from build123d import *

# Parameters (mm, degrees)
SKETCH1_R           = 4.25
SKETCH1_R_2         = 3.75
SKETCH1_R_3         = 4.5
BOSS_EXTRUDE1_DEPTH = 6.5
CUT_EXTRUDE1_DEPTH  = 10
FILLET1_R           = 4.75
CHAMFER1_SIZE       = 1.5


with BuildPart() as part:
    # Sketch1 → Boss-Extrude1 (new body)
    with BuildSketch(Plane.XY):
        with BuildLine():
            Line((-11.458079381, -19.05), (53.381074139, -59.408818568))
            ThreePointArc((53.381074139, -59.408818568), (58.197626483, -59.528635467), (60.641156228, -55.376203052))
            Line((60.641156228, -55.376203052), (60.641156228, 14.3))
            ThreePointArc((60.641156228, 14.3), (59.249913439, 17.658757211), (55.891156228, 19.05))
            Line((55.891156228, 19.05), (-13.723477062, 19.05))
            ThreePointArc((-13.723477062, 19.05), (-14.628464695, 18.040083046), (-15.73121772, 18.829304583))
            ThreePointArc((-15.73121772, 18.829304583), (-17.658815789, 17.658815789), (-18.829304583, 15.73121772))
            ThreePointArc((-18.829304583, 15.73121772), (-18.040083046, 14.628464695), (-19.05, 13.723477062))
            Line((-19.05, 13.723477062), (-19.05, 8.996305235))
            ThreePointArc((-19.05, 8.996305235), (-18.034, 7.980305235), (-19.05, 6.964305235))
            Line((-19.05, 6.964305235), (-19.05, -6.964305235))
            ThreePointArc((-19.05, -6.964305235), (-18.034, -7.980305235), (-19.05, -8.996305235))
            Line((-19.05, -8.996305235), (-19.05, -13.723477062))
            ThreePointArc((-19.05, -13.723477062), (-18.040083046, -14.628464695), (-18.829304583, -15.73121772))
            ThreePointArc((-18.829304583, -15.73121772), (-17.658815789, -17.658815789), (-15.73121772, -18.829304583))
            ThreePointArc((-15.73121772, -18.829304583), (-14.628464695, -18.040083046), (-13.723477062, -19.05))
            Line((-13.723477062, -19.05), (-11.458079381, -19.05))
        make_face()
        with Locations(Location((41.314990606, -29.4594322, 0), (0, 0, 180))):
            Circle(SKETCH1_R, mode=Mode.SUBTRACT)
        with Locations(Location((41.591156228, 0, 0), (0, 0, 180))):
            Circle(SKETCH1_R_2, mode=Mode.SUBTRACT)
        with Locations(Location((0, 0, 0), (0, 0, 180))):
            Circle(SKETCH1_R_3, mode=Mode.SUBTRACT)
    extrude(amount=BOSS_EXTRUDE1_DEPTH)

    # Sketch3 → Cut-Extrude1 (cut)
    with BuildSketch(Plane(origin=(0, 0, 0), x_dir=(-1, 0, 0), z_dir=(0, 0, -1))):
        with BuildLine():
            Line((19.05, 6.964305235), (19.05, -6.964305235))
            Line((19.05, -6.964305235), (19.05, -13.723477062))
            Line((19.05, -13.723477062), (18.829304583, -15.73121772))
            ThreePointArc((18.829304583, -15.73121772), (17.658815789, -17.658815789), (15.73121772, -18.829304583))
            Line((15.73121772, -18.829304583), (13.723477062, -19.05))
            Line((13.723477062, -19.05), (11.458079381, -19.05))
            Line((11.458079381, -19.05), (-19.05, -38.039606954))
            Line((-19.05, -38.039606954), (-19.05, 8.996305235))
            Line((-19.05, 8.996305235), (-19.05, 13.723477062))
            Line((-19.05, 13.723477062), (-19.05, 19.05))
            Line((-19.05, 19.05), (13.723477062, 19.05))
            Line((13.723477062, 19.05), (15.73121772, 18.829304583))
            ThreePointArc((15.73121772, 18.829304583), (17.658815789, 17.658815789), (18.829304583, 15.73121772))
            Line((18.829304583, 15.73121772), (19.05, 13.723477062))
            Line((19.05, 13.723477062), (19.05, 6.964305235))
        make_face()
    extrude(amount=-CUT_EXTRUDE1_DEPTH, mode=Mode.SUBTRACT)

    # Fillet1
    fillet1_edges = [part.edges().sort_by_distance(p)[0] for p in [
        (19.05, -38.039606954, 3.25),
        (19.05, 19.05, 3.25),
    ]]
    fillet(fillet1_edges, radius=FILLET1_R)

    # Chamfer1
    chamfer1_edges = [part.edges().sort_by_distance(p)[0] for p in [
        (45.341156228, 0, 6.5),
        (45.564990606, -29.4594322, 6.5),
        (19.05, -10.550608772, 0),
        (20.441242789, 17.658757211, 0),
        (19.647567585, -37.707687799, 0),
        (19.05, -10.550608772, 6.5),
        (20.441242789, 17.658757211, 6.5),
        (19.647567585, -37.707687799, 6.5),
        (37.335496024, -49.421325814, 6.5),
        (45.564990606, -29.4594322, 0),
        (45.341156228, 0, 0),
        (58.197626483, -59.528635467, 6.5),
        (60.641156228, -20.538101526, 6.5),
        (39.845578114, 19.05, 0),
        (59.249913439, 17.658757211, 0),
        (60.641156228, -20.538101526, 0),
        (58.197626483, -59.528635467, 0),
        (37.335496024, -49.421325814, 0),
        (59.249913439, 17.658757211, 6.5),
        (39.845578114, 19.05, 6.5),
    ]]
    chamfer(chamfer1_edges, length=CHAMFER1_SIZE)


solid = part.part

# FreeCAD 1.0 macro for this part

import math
import FreeCAD as App
import Part
import Sketcher

V = App.Vector
Q = App.Units.Quantity


def edges_at(feature, points):
    """Names of the edges that pass closest to the given points."""
    edges = feature.Shape.Edges
    near = lambda p: min(range(len(edges)), key=lambda i: edges[i].distToShape(Part.Vertex(*p))[0])
    return sorted({f"Edge{near(p) + 1}" for p in points})

doc = App.newDocument("Part")
params = doc.addObject("Spreadsheet::Sheet", "Params")
for row, (alias, value) in enumerate([
    ("sketch1_diameter", "9 mm"),
    ("sketch1_diameter2", "8.5 mm"),
    ("sketch1_diameter3", "7.5 mm"),
    ("sketch1_radius", "4.75 mm"),
    ("pad1_length", "6.5 mm"),
    ("pocket1_length", "10 mm"),
    ("fillet_radius", "4.75 mm"),
    ("chamfer_size", "1.5 mm"),
], start=1):
    params.set(f"A{row}", alias)
    params.set(f"B{row}", "=" + value)
    params.setAlias(f"B{row}", alias)

body = doc.addObject("PartDesign::Body", "Body")

# Sketch on XY plane
sketch1 = body.newObject("Sketcher::SketchObject", "Sketch")
sketch1.AttachmentSupport = (doc.getObject("XY_Plane"), [""])
sketch1.MapMode = "FlatFace"
sketch1.addGeometry([
    Part.LineSegment(V(-11.5, -19.1, 0), V(53.4, -59.4, 0)),  # 0
    Part.ArcOfCircle(Part.Circle(V(55.9, -55.4, 0), V(0, 0, 1), 4.7), math.radians(-122), math.radians(0)),  # 1
    Part.LineSegment(V(60.6, -55.4, 0), V(60.6, 14.3, 0)),  # 2
    Part.ArcOfCircle(Part.Circle(V(55.9, 14.3, 0), V(0, 0, 1), 4.7), math.radians(0), math.radians(90)),  # 3
    Part.LineSegment(V(55.9, 19.1, 0), V(-13.7, 19.1, 0)),  # 4
    Part.ArcOfCircle(Part.Circle(V(-14.7, 19.1, 0), V(0, 0, 1), 1), math.radians(-167), math.radians(0)),  # 5
    Part.ArcOfCircle(Part.Circle(V(-14.3, 14.3, 0), V(0, 0, 1), 4.7), math.radians(108), math.radians(162)),  # 6
    Part.ArcOfCircle(Part.Circle(V(-19.1, 14.7, 0), V(0, 0, 1), 1), math.radians(-90), math.radians(77)),  # 7
    Part.LineSegment(V(-19.1, 13.7, 0), V(-19.1, 9, 0)),  # 8
    Part.ArcOfCircle(Part.Circle(V(-19.1, 8, 0), V(0, 0, 1), 1), math.radians(-90), math.radians(90)),  # 9
    Part.LineSegment(V(-19.1, 7, 0), V(-19.1, -7, 0)),  # 10
    Part.ArcOfCircle(Part.Circle(V(-19.1, -8, 0), V(0, 0, 1), 1), math.radians(-90), math.radians(90)),  # 11
    Part.LineSegment(V(-19.1, -9, 0), V(-19.1, -13.7, 0)),  # 12
    Part.ArcOfCircle(Part.Circle(V(-19.1, -14.7, 0), V(0, 0, 1), 1), math.radians(-77), math.radians(90)),  # 13
    Part.ArcOfCircle(Part.Circle(V(-14.3, -14.3, 0), V(0, 0, 1), 4.7), math.radians(-162), math.radians(-108)),  # 14
    Part.ArcOfCircle(Part.Circle(V(-14.7, -19.1, 0), V(0, 0, 1), 1), math.radians(0), math.radians(167)),  # 15
    Part.LineSegment(V(-13.7, -19.1, 0), V(-11.5, -19.1, 0)),  # 16
    Part.Circle(V(41.3, -29.5, 0), V(0, 0, 1), 4.2),  # 17
    Part.Circle(V(0, 0, 0), V(0, 0, 1), 4.5),  # 18
    Part.Circle(V(41.6, 0, 0), V(0, 0, 1), 3.8),  # 19
], False)
sketch1.addConstraint([
    Sketcher.Constraint("Tangent", 0, 2, 1, 1),
    Sketcher.Constraint("Tangent", 1, 2, 2, 1),
    Sketcher.Constraint("Tangent", 2, 2, 3, 1),
    Sketcher.Constraint("Tangent", 3, 2, 4, 1),
    Sketcher.Constraint("Coincident", 4, 2, 5, 2),
    Sketcher.Constraint("Coincident", 5, 1, 6, 1),
    Sketcher.Constraint("Coincident", 6, 2, 7, 2),
    Sketcher.Constraint("Coincident", 7, 1, 8, 1),
    Sketcher.Constraint("Coincident", 8, 2, 9, 2),
    Sketcher.Constraint("Coincident", 9, 1, 10, 1),
    Sketcher.Constraint("Coincident", 10, 2, 11, 2),
    Sketcher.Constraint("Coincident", 11, 1, 12, 1),
    Sketcher.Constraint("Coincident", 12, 2, 13, 2),
    Sketcher.Constraint("Coincident", 13, 1, 14, 1),
    Sketcher.Constraint("Coincident", 14, 2, 15, 2),
    Sketcher.Constraint("Coincident", 15, 1, 16, 1),
    Sketcher.Constraint("Coincident", 16, 2, 0, 1),
    Sketcher.Constraint("Vertical", 2),
    Sketcher.Constraint("Horizontal", 4),
    Sketcher.Constraint("Vertical", 8),
    Sketcher.Constraint("Vertical", 10),
    Sketcher.Constraint("Vertical", 12),
    Sketcher.Constraint("Horizontal", 16),
    Sketcher.Constraint("Coincident", 18, 3, -1, 1),
    Sketcher.Constraint("Equal", 1, 3),
    Sketcher.Constraint("Equal", 5, 7),
    Sketcher.Constraint("Equal", 7, 9),
    Sketcher.Constraint("Equal", 9, 11),
    Sketcher.Constraint("Equal", 11, 13),
    Sketcher.Constraint("Equal", 6, 14),
    Sketcher.Constraint("Equal", 13, 15),
    Sketcher.Constraint("Symmetric", 9, 3, 11, 3, -1),
    Sketcher.Constraint("Symmetric", 7, 3, 13, 3, -1),
    Sketcher.Constraint("Symmetric", 6, 3, 14, 3, -1),
    Sketcher.Constraint("Symmetric", 5, 3, 15, 3, -1),
    Sketcher.Constraint("PointOnObject", 19, 3, -1),
    Sketcher.Constraint("Horizontal", 5, 3, 3, 2),
    Sketcher.Constraint("Vertical", 7, 3, 9, 3),
    Sketcher.Constraint("Vertical", 13, 3, 7, 1),
    Sketcher.Constraint("Vertical", 8, 2, 9, 1),
    Sketcher.Constraint("Vertical", 10, 2, 11, 1),
    Sketcher.Constraint("Diameter", 18, Q("9 mm")),
    Sketcher.Constraint("Diameter", 17, Q("8.5 mm")),
    Sketcher.Constraint("Diameter", 19, Q("7.5 mm")),
    Sketcher.Constraint("Radius", 1, Q("4.75 mm")),
    Sketcher.Constraint("Angle", 0, Q("-31.9 deg")),
    Sketcher.Constraint("Radius", 5, Q("1.016 mm")),
    Sketcher.Constraint("DistanceY", -1, 1, 3, 3, Q("14.3 mm")),
    Sketcher.Constraint("Radius", 6, Q("4.7498 mm")),
    Sketcher.Constraint("DistanceX", 19, 3, 3, 3, Q("14.3 mm")),
    Sketcher.Constraint("DistanceX", 7, 3, -1, 1, Q("19.05 mm")),
    Sketcher.Constraint("DistanceY", 15, 1, -1, 1, Q("19.05 mm")),
    Sketcher.Constraint("DistanceY", 9, 3, 5, 1, Q("10.848999 mm")),
    Sketcher.Constraint("DistanceY", 8, 2, 8, 1, Q("4.727172 mm")),
    Sketcher.Constraint("DistanceY", 10, 2, 10, 1, Q("13.92861 mm")),
    Sketcher.Constraint("DistanceX", 6, 3, -1, 1, Q("14.3002 mm")),
    Sketcher.Constraint("DistanceY", -1, 1, 6, 3, Q("14.3002 mm")),
    Sketcher.Constraint("DistanceX", 4, 2, 4, 1, Q("69.614633 mm")),
    Sketcher.Constraint("DistanceX", 16, 1, 16, 2, Q("2.265398 mm")),
    Sketcher.Constraint("DistanceX", -1, 1, 17, 3, Q("41.314991 mm")),
    Sketcher.Constraint("DistanceY", 1, 3, 17, 3, Q("25.916771 mm")),
])
sketch1.setExpression("Constraints[41]", "Params.sketch1_diameter")
sketch1.setExpression("Constraints[42]", "Params.sketch1_diameter2")
sketch1.setExpression("Constraints[43]", "Params.sketch1_diameter3")
sketch1.setExpression("Constraints[44]", "Params.sketch1_radius")
pad1 = body.newObject("PartDesign::Pad", "Pad")
pad1.Profile = sketch1
pad1.setExpression("Length", "Params.pad1_length")

# Sketch on XY plane
sketch2 = body.newObject("Sketcher::SketchObject", "Sketch001")
sketch2.AttachmentSupport = (doc.getObject("XY_Plane"), [""])
sketch2.MapMode = "FlatFace"
sketch2.addGeometry([
    Part.LineSegment(V(-18.8, -15.7, 0), V(-19.1, -13.7, 0)),  # 0
    Part.LineSegment(V(-19.1, -13.7, 0), V(-19.1, 13.7, 0)),  # 1
    Part.LineSegment(V(-19.1, 13.7, 0), V(-18.8, 15.7, 0)),  # 2
    Part.ArcOfCircle(Part.Circle(V(-14.3, 14.3, 0), V(0, 0, 1), 4.7), math.radians(108), math.radians(162)),  # 3
    Part.LineSegment(V(-15.7, 18.8, 0), V(-13.7, 19.1, 0)),  # 4
    Part.LineSegment(V(-13.7, 19.1, 0), V(19.1, 19.1, 0)),  # 5
    Part.LineSegment(V(19.1, 19.1, 0), V(19.1, -38, 0)),  # 6
    Part.LineSegment(V(19.1, -38, 0), V(-11.5, -19.1, 0)),  # 7
    Part.LineSegment(V(-11.5, -19.1, 0), V(-13.7, -19.1, 0)),  # 8
    Part.LineSegment(V(-13.7, -19.1, 0), V(-15.7, -18.8, 0)),  # 9
    Part.ArcOfCircle(Part.Circle(V(-14.3, -14.3, 0), V(0, 0, 1), 4.7), math.radians(-162), math.radians(-108)),  # 10
], False)
sketch2.addConstraint([
    Sketcher.Constraint("Coincident", 0, 2, 1, 1),
    Sketcher.Constraint("Coincident", 1, 2, 2, 1),
    Sketcher.Constraint("Coincident", 2, 2, 3, 2),
    Sketcher.Constraint("Coincident", 3, 1, 4, 1),
    Sketcher.Constraint("Coincident", 4, 2, 5, 1),
    Sketcher.Constraint("Coincident", 5, 2, 6, 1),
    Sketcher.Constraint("Coincident", 6, 2, 7, 1),
    Sketcher.Constraint("Coincident", 7, 2, 8, 1),
    Sketcher.Constraint("Coincident", 8, 2, 9, 1),
    Sketcher.Constraint("Coincident", 9, 2, 10, 2),
    Sketcher.Constraint("Coincident", 10, 1, 0, 1),
    Sketcher.Constraint("Vertical", 1),
    Sketcher.Constraint("Horizontal", 5),
    Sketcher.Constraint("Vertical", 6),
    Sketcher.Constraint("Horizontal", 8),
    Sketcher.Constraint("Equal", 3, 10),
    Sketcher.Constraint("Symmetric", 3, 3, 10, 3, -1),
    Sketcher.Constraint("Symmetric", 4, 2, 8, 2, -1),
    Sketcher.Constraint("Perpendicular", 0, 4),
    Sketcher.Constraint("Perpendicular", 2, 9),
    Sketcher.Constraint("Vertical", 3, 1, 9, 2),
    Sketcher.Constraint("Vertical", 2, 2, 10, 1),
    Sketcher.Constraint("Equal", 2, 4),
    Sketcher.Constraint("Angle", 7, Q("148.1 deg")),
    Sketcher.Constraint("Radius", 3, Q("4.7498 mm")),
    Sketcher.Constraint("DistanceX", 1, 2, 5, 2, Q("38.1 mm")),
    Sketcher.Constraint("DistanceX", 0, 2, -1, 1, Q("19.05 mm")),
    Sketcher.Constraint("DistanceY", -1, 1, 4, 2, Q("19.05 mm")),
    Sketcher.Constraint("DistanceX", 3, 3, -1, 1, Q("14.3002 mm")),
    Sketcher.Constraint("DistanceY", -1, 1, 3, 3, Q("14.3002 mm")),
    Sketcher.Constraint("Distance", 7, Q("35.935332 mm")),
    Sketcher.Constraint("DistanceX", 5, 1, 5, 2, Q("32.773477 mm")),
    Sketcher.Constraint("DistanceY", 1, 2, 2, 2, Q("2.007741 mm")),
])
pocket1 = body.newObject("PartDesign::Pocket", "Pocket")
pocket1.Profile = sketch2
pocket1.setExpression("Length", "Params.pocket1_length")
pocket1.Reversed = True
doc.recompute()

fillet = body.newObject("PartDesign::Fillet", "Fillet")
fillet.Base = (pocket1, edges_at(pocket1, [(19.05, -38.04, 3.25), (19.05, 19.05, 3.25)]))
fillet.setExpression("Radius", "Params.fillet_radius")
doc.recompute()

chamfer = body.newObject("PartDesign::Chamfer", "Chamfer")
chamfer.Base = (fillet, edges_at(fillet, [
    (45.341, 0, 6.5),
    (45.565, -29.459, 6.5),
    (19.05, -10.551, 0),
    (20.441, 17.659, 0),
    (19.648, -37.708, 0),
    (19.05, -10.551, 6.5),
    (20.441, 17.659, 6.5),
    (19.648, -37.708, 6.5),
    (37.335, -49.421, 6.5),
    (45.565, -29.459, 0),
    (45.341, 0, 0),
    (58.198, -59.529, 6.5),
    (60.641, -20.538, 6.5),
    (39.846, 19.05, 0),
    (59.25, 17.659, 0),
    (60.641, -20.538, 0),
    (58.198, -59.529, 0),
    (37.335, -49.421, 0),
    (59.25, 17.659, 6.5),
    (39.846, 19.05, 6.5),
]))
chamfer.setExpression("Size", "Params.chamfer_size")

doc.recompute()
